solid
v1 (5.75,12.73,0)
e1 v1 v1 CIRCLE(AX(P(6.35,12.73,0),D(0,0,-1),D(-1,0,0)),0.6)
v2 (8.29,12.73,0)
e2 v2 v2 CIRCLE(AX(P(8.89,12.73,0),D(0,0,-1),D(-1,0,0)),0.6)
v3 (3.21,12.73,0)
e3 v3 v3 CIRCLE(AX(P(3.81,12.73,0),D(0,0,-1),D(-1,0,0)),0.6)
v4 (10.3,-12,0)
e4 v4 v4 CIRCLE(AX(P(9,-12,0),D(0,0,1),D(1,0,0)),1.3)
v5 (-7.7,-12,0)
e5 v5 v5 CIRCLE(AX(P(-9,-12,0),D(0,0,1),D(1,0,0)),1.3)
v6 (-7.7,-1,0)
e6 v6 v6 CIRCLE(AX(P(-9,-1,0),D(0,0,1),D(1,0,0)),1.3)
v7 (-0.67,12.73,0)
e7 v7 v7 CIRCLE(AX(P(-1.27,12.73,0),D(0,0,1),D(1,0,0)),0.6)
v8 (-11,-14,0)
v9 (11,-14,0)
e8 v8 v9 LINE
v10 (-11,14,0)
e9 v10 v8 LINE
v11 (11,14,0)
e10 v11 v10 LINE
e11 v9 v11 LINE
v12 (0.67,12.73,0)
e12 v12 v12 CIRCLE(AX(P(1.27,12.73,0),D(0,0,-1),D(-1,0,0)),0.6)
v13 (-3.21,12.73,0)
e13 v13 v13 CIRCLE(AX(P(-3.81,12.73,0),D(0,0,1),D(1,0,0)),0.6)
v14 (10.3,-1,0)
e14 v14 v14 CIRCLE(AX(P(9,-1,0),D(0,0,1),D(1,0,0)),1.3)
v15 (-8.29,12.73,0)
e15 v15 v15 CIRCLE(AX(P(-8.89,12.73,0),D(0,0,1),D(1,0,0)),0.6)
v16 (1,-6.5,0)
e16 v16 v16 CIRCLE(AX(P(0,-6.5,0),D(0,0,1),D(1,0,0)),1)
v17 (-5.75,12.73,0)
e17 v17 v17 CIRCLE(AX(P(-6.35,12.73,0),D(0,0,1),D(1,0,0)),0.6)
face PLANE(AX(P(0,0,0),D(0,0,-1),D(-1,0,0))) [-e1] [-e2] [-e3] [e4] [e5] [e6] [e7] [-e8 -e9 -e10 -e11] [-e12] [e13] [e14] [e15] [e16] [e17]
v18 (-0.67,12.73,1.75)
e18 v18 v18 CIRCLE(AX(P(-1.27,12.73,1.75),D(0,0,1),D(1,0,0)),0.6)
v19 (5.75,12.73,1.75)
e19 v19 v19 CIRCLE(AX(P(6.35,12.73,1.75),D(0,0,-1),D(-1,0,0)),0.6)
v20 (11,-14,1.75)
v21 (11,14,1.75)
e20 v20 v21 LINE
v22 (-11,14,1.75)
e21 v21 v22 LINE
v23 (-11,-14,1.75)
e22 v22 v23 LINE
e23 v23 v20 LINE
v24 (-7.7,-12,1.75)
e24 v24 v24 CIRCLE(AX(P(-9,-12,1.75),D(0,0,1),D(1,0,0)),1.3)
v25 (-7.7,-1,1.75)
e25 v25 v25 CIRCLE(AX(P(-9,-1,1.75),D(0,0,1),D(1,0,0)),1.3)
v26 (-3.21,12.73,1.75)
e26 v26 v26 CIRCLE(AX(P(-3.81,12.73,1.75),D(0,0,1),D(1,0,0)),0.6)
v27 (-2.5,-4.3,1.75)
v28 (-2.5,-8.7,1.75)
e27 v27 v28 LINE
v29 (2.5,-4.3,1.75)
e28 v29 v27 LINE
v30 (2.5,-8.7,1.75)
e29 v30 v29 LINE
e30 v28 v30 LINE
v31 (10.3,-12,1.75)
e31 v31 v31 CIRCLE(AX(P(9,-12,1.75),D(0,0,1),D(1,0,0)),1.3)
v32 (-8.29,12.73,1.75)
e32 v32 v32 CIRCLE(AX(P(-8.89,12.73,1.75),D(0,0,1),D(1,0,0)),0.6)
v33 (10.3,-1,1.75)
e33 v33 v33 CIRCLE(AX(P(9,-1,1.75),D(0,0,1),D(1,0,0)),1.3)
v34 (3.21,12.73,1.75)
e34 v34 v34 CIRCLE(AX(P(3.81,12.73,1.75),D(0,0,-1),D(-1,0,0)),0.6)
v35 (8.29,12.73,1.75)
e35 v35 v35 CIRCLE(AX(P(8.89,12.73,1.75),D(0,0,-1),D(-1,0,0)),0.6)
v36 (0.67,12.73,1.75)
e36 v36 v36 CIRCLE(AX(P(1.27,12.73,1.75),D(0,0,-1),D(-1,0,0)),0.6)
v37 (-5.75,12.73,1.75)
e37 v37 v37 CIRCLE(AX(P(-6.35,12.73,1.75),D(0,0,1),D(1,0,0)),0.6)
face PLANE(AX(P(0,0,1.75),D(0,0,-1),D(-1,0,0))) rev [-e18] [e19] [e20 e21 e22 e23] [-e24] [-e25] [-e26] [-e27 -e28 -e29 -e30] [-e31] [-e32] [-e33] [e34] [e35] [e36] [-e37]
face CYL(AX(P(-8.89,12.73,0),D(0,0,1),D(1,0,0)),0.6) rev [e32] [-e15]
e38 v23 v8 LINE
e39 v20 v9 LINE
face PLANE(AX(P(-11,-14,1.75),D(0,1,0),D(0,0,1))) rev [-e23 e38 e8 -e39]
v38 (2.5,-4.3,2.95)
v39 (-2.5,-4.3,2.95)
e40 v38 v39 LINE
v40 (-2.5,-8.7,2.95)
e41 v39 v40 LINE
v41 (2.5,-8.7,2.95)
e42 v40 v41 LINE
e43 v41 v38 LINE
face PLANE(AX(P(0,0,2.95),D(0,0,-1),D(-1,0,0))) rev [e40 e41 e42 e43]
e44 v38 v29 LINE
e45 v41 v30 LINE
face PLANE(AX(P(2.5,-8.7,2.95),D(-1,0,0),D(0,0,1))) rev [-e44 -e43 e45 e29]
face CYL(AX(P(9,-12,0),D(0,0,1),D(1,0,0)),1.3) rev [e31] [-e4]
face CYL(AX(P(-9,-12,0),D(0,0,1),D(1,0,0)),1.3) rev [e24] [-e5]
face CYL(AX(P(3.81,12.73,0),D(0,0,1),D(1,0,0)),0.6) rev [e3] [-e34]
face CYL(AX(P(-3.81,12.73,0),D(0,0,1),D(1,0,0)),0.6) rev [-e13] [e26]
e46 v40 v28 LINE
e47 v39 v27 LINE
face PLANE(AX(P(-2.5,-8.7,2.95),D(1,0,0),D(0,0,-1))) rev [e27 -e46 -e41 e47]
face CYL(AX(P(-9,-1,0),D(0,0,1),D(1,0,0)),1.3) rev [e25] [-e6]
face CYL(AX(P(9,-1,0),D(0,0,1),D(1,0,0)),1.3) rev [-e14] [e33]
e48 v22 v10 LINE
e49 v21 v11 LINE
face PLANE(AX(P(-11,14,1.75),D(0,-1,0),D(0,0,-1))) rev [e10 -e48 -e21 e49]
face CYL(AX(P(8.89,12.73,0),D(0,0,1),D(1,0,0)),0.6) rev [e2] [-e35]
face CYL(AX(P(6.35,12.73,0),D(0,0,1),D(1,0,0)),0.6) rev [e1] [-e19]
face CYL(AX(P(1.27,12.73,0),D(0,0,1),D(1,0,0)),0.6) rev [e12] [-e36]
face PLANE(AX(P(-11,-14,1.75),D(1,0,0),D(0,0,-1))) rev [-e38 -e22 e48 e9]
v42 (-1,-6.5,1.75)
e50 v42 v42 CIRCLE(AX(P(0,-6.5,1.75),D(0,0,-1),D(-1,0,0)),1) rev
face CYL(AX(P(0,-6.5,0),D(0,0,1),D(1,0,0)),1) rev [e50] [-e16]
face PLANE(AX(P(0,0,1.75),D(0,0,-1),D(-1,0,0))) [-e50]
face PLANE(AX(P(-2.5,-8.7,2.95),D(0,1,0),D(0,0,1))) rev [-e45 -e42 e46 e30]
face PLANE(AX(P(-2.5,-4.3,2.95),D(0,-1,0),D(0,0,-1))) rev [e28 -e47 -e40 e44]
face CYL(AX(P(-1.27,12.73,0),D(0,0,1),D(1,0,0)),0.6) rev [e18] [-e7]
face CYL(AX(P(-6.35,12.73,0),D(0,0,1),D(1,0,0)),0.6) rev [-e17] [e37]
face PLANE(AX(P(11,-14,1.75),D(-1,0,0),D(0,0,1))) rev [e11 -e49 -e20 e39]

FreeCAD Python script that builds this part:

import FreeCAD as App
import Part
import Sketcher

V = App.Vector
Q = App.Units.Quantity

doc = App.newDocument("Part")
body = doc.addObject("PartDesign::Body", "Body")

# Sketch on XY plane
sketch1 = body.newObject("Sketcher::SketchObject", "Sketch")
sketch1.AttachmentSupport = (doc.getObject("XY_Plane"), [""])
sketch1.MapMode = "FlatFace"
sketch1.addGeometry(Part.LineSegment(V(-11, 14, 0), V(-11, -14, 0)), False)
sketch1.addGeometry(Part.LineSegment(V(-11, -14, 0), V(11, -14, 0)), False)
sketch1.addGeometry(Part.LineSegment(V(11, -14, 0), V(11, 14, 0)), False)
sketch1.addGeometry(Part.LineSegment(V(11, 14, 0), V(-11, 14, 0)), False)
sketch1.addConstraint(Sketcher.Constraint("Coincident", 0, 2, 1, 1))
sketch1.addConstraint(Sketcher.Constraint("Coincident", 1, 2, 2, 1))
sketch1.addConstraint(Sketcher.Constraint("Coincident", 2, 2, 3, 1))
sketch1.addConstraint(Sketcher.Constraint("Coincident", 3, 2, 0, 1))
sketch1.addConstraint(Sketcher.Constraint("Vertical", 0))
sketch1.addConstraint(Sketcher.Constraint("Horizontal", 1))
sketch1.addConstraint(Sketcher.Constraint("Vertical", 2))
sketch1.addConstraint(Sketcher.Constraint("Horizontal", 3))
sketch1.addConstraint(Sketcher.Constraint("Symmetric", 0, 2, 2, 2, -1, 1))
sketch1.addConstraint(Sketcher.Constraint("DistanceX", 1, 1, 1, 2, Q("22 mm")))
sketch1.addConstraint(Sketcher.Constraint("DistanceY", 0, 2, 0, 1, Q("28 mm")))
pad1 = body.newObject("PartDesign::Pad", "Pad")
pad1.Profile = sketch1
pad1.Length = 1.75

# Sketch on XY plane
sketch2 = body.newObject("Sketcher::SketchObject", "Sketch001")
sketch2.AttachmentSupport = (doc.getObject("XY_Plane"), [""])
sketch2.MapMode = "FlatFace"
sketch2.AttachmentOffset = App.Placement(V(0, 0, 1.75), App.Rotation())
sketch2.addGeometry(Part.Circle(V(-9, -1, 0), V(0, 0, 1), 1.3), False)
sketch2.addGeometry(Part.Circle(V(-9, -12, 0), V(0, 0, 1), 1.3), False)
sketch2.addGeometry(Part.Circle(V(9, -12, 0), V(0, 0, 1), 1.3), False)
sketch2.addGeometry(Part.Circle(V(9, -1, 0), V(0, 0, 1), 1.3), False)
sketch2.addGeometry(Part.Circle(V(0, -6.5, 0), V(0, 0, 1), 1), False)
sketch2.addConstraint(Sketcher.Constraint("Equal", 0, 1))
sketch2.addConstraint(Sketcher.Constraint("Equal", 1, 2))
sketch2.addConstraint(Sketcher.Constraint("Equal", 2, 3))
sketch2.addConstraint(Sketcher.Constraint("Symmetric", 1, 3, 2, 3, -2))
sketch2.addConstraint(Sketcher.Constraint("Symmetric", 0, 3, 3, 3, -2))
sketch2.addConstraint(Sketcher.Constraint("PointOnObject", 4, 3, -2))
sketch2.addConstraint(Sketcher.Constraint("Vertical", 0, 3, 1, 3))
sketch2.addConstraint(Sketcher.Constraint("Diameter", 4, Q("2 mm")))
sketch2.addConstraint(Sketcher.Constraint("Diameter", 0, Q("2.6 mm")))
sketch2.addConstraint(Sketcher.Constraint("DistanceX", 0, 3, -1, 1, Q("9 mm")))
sketch2.addConstraint(Sketcher.Constraint("DistanceY", 0, 3, -1, 1, Q("1 mm")))
sketch2.addConstraint(Sketcher.Constraint("DistanceY", 1, 3, -1, 1, Q("12 mm")))
sketch2.addConstraint(Sketcher.Constraint("DistanceY", 4, 3, -1, 1, Q("6.5 mm")))
pocket1 = body.newObject("PartDesign::Pocket", "Pocket")
pocket1.Profile = sketch2
pocket1.Type = "ThroughAll"

# Sketch on XY plane
sketch3 = body.newObject("Sketcher::SketchObject", "Sketch002")
sketch3.AttachmentSupport = (doc.getObject("XY_Plane"), [""])
sketch3.MapMode = "FlatFace"
sketch3.AttachmentOffset = App.Placement(V(0, 0, 1.75), App.Rotation())
sketch3.addGeometry(Part.Circle(V(-1.3, 12.7, 0), V(0, 0, 1), 0.6), False)
sketch3.addConstraint(Sketcher.Constraint("Diameter", 0, Q("1.2 mm")))
sketch3.addConstraint(Sketcher.Constraint("DistanceX", 0, 3, -1, 1, Q("1.27 mm")))
sketch3.addConstraint(Sketcher.Constraint("DistanceY", -1, 1, 0, 3, Q("12.73 mm")))
pocket2 = body.newObject("PartDesign::Pocket", "Pocket001")
pocket2.Profile = sketch3
pocket2.Type = "ThroughAll"
doc.recompute()

linearpattern = body.newObject("PartDesign::LinearPattern", "LinearPattern")
linearpattern.Originals = [pocket2]
linearpattern.Direction = (doc.getObject("X_Axis"), [""])
linearpattern.Mode = "offset"
linearpattern.Offset = 2.54
linearpattern.Occurrences = 4
linearpattern.Reversed = True
body.Tip = linearpattern
doc.recompute()

mirrored = body.newObject("PartDesign::Mirrored", "Mirrored")
mirrored.Originals = [pocket2]
mirrored.MirrorPlane = (doc.getObject("YZ_Plane"), [""])
body.Tip = mirrored

# Sketch on XY plane
sketch4 = body.newObject("Sketcher::SketchObject", "Sketch003")
sketch4.AttachmentSupport = (doc.getObject("XY_Plane"), [""])
sketch4.MapMode = "FlatFace"
sketch4.AttachmentOffset = App.Placement(V(0, 0, 1.75), App.Rotation())
sketch4.addGeometry(Part.Circle(V(3.8, 12.7, 0), V(0, 0, 1), 0.6), False)
sketch4.addConstraint(Sketcher.Constraint("Diameter", 0, Q("1.2 mm")))
sketch4.addConstraint(Sketcher.Constraint("DistanceX", -1, 1, 0, 3, Q("3.81 mm")))
sketch4.addConstraint(Sketcher.Constraint("DistanceY", -1, 1, 0, 3, Q("12.73 mm")))
pocket3 = body.newObject("PartDesign::Pocket", "Pocket002")
pocket3.Profile = sketch4
pocket3.Type = "ThroughAll"

# Sketch on XY plane
sketch5 = body.newObject("Sketcher::SketchObject", "Sketch004")
sketch5.AttachmentSupport = (doc.getObject("XY_Plane"), [""])
sketch5.MapMode = "FlatFace"
sketch5.AttachmentOffset = App.Placement(V(0, 0, 1.75), App.Rotation())
sketch5.addGeometry(Part.Circle(V(6.3, 12.7, 0), V(0, 0, 1), 0.6), False)
sketch5.addConstraint(Sketcher.Constraint("Diameter", 0, Q("1.2 mm")))
sketch5.addConstraint(Sketcher.Constraint("DistanceX", -1, 1, 0, 3, Q("6.35 mm")))
sketch5.addConstraint(Sketcher.Constraint("DistanceY", -1, 1, 0, 3, Q("12.73 mm")))
pocket4 = body.newObject("PartDesign::Pocket", "Pocket003")
pocket4.Profile = sketch5
pocket4.Type = "ThroughAll"

# Sketch on XY plane
sketch6 = body.newObject("Sketcher::SketchObject", "Sketch005")
sketch6.AttachmentSupport = (doc.getObject("XY_Plane"), [""])
sketch6.MapMode = "FlatFace"
sketch6.AttachmentOffset = App.Placement(V(0, 0, 1.75), App.Rotation())
sketch6.addGeometry(Part.Circle(V(8.9, 12.7, 0), V(0, 0, 1), 0.6), False)
sketch6.addConstraint(Sketcher.Constraint("Diameter", 0, Q("1.2 mm")))
sketch6.addConstraint(Sketcher.Constraint("DistanceX", -1, 1, 0, 3, Q("8.89 mm")))
sketch6.addConstraint(Sketcher.Constraint("DistanceY", -1, 1, 0, 3, Q("12.73 mm")))
pocket5 = body.newObject("PartDesign::Pocket", "Pocket004")
pocket5.Profile = sketch6
pocket5.Type = "ThroughAll"

# Sketch on XY plane
sketch7 = body.newObject("Sketcher::SketchObject", "Sketch006")
sketch7.AttachmentSupport = (doc.getObject("XY_Plane"), [""])
sketch7.MapMode = "FlatFace"
sketch7.AttachmentOffset = App.Placement(V(0, 0, 1.75), App.Rotation())
sketch7.addGeometry(Part.LineSegment(V(-2.5, -4.3, 0), V(-2.5, -8.7, 0)), False)
sketch7.addGeometry(Part.LineSegment(V(-2.5, -8.7, 0), V(2.5, -8.7, 0)), False)
sketch7.addGeometry(Part.LineSegment(V(2.5, -8.7, 0), V(2.5, -4.3, 0)), False)
sketch7.addGeometry(Part.LineSegment(V(2.5, -4.3, 0), V(-2.5, -4.3, 0)), False)
sketch7.addConstraint(Sketcher.Constraint("Coincident", 0, 2, 1, 1))
sketch7.addConstraint(Sketcher.Constraint("Coincident", 1, 2, 2, 1))
sketch7.addConstraint(Sketcher.Constraint("Coincident", 2, 2, 3, 1))
sketch7.addConstraint(Sketcher.Constraint("Coincident", 3, 2, 0, 1))
sketch7.addConstraint(Sketcher.Constraint("Vertical", 0))
sketch7.addConstraint(Sketcher.Constraint("Horizontal", 1))
sketch7.addConstraint(Sketcher.Constraint("Vertical", 2))
sketch7.addConstraint(Sketcher.Constraint("Horizontal", 3))
sketch7.addConstraint(Sketcher.Constraint("DistanceX", 1, 1, 1, 2, Q("5 mm")))
sketch7.addConstraint(Sketcher.Constraint("DistanceY", 0, 2, 0, 1, Q("4.4 mm")))
sketch7.addConstraint(Sketcher.Constraint("DistanceX", 0, 2, -1, 1, Q("2.5 mm")))
sketch7.addConstraint(Sketcher.Constraint("DistanceY", 0, 2, -1, 1, Q("8.7 mm")))
pad2 = body.newObject("PartDesign::Pad", "Pad001")
pad2.Profile = sketch7
pad2.Length = 1.2

doc.recompute()
